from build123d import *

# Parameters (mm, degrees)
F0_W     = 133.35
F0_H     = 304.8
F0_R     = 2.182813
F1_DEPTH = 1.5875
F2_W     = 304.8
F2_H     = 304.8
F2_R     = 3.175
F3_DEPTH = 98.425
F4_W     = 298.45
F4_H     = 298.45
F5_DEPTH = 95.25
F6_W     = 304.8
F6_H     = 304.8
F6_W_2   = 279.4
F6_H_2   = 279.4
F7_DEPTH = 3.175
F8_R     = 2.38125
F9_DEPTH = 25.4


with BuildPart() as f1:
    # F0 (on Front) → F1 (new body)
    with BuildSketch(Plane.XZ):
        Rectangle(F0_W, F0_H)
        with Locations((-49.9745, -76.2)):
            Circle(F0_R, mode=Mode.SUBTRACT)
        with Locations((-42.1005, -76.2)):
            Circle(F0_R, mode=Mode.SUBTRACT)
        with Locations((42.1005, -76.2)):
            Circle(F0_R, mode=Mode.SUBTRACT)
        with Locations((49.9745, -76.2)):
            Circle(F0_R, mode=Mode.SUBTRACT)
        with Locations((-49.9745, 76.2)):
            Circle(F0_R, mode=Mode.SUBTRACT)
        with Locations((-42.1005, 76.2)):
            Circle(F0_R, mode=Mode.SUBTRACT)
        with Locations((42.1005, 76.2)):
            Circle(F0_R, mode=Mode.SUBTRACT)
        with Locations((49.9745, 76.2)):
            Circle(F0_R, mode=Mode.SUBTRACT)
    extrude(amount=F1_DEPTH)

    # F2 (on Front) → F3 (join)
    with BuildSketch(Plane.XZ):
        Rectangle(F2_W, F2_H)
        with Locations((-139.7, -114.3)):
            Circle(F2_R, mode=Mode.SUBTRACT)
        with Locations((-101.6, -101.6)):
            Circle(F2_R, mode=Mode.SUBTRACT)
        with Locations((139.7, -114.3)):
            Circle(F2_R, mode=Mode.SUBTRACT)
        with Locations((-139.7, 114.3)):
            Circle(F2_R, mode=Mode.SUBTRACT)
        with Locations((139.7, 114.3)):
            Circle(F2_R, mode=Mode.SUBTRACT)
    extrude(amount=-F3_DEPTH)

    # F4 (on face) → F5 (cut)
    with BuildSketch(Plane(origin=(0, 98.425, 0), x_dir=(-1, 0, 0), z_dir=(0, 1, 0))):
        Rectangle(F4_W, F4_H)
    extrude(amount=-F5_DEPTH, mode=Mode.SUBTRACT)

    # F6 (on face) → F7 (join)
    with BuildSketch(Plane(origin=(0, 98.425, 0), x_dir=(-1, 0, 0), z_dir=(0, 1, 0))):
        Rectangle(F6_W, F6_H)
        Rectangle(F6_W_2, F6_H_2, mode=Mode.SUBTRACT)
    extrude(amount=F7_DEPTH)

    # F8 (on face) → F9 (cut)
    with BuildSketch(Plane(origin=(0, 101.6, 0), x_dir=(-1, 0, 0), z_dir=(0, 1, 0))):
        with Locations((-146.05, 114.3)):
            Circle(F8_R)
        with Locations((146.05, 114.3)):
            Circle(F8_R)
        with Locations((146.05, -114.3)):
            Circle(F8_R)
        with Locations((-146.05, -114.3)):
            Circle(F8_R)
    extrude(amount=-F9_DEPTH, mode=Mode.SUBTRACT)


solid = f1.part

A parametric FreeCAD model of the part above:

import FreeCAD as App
import Part
import Sketcher

V = App.Vector
Q = App.Units.Quantity


def add_polygon(sketch, points):
    """Adds a closed chain of lines whose ends are joined by coincident constraints."""
    first, n = sketch.GeometryCount, len(points)
    for a, b in zip(points, points[1:] + points[:1]):
        sketch.addGeometry(Part.LineSegment(App.Vector(*a, 0), App.Vector(*b, 0)), False)
    for i in range(n):
        sketch.addConstraint(Sketcher.Constraint("Coincident", first + i, 2, first + (i + 1) % n, 1))

doc = App.newDocument("Part")
body = doc.addObject("PartDesign::Body", "Body")

sketch1 = body.newObject("Sketcher::SketchObject", "Sketch")
sketch1.AttachmentSupport = (doc.getObject("XZ_Plane"), [""])
sketch1.MapMode = "FlatFace"
add_polygon(sketch1, [(-66.675, 152.4), (-66.675, -152.4), (66.675, -152.4), (66.675, 152.4)])
sketch1.addGeometry(Part.Circle(V(-49.9745, -76.2, 0), V(0, 0, 1), 2.182813), False)
sketch1.addGeometry(Part.Circle(V(-42.1005, -76.2, 0), V(0, 0, 1), 2.182813), False)
sketch1.addGeometry(Part.Circle(V(42.1005, -76.2, 0), V(0, 0, 1), 2.182813), False)
sketch1.addGeometry(Part.Circle(V(49.9745, -76.2, 0), V(0, 0, 1), 2.182813), False)
sketch1.addGeometry(Part.Circle(V(-49.9745, 76.2, 0), V(0, 0, 1), 2.182813), False)
sketch1.addGeometry(Part.Circle(V(-42.1005, 76.2, 0), V(0, 0, 1), 2.182813), False)
sketch1.addGeometry(Part.Circle(V(42.1005, 76.2, 0), V(0, 0, 1), 2.182813), False)
sketch1.addGeometry(Part.Circle(V(49.9745, 76.2, 0), V(0, 0, 1), 2.182813), False)
sketch1.addConstraint(Sketcher.Constraint("Vertical", 0))
sketch1.addConstraint(Sketcher.Constraint("Horizontal", 1))
sketch1.addConstraint(Sketcher.Constraint("Vertical", 2))
sketch1.addConstraint(Sketcher.Constraint("Horizontal", 3))
sketch1.addConstraint(Sketcher.Constraint("Equal", 4, 5))
sketch1.addConstraint(Sketcher.Constraint("Equal", 5, 6))
sketch1.addConstraint(Sketcher.Constraint("Equal", 6, 7))
sketch1.addConstraint(Sketcher.Constraint("Equal", 7, 8))
sketch1.addConstraint(Sketcher.Constraint("Equal", 8, 9))
sketch1.addConstraint(Sketcher.Constraint("Equal", 9, 10))
sketch1.addConstraint(Sketcher.Constraint("Equal", 10, 11))
sketch1.addConstraint(Sketcher.Constraint("Symmetric", 7, 3, 8, 3, -1, 1))
sketch1.addConstraint(Sketcher.Constraint("Symmetric", 6, 3, 9, 3, -1, 1))
sketch1.addConstraint(Sketcher.Constraint("Symmetric", 5, 3, 10, 3, -1, 1))
sketch1.addConstraint(Sketcher.Constraint("Symmetric", 4, 3, 11, 3, -1, 1))
sketch1.addConstraint(Sketcher.Constraint("Symmetric", 0, 2, 2, 2, -1, 1))
sketch1.addConstraint(Sketcher.Constraint("Symmetric", 5, 3, 6, 3, -2))
sketch1.addConstraint(Sketcher.Constraint("Symmetric", 4, 3, 7, 3, -2))
sketch1.addConstraint(Sketcher.Constraint("Horizontal", 4, 3, 5, 3))
sketch1.addConstraint(Sketcher.Constraint("DistanceY", 0, 2, 0, 1, Q("12 in")))
sketch1.addConstraint(Sketcher.Constraint("Diameter", 4, Q("0.171875 in")))
sketch1.addConstraint(Sketcher.Constraint("DistanceY", 4, 3, -1, 1, Q("3 in")))
sketch1.addConstraint(Sketcher.Constraint("DistanceX", 1, 1, 1, 2, Q("5.25 in")))
sketch1.addConstraint(Sketcher.Constraint("DistanceX", 4, 3, 5, 3, Q("0.31 in")))
sketch1.addConstraint(Sketcher.Constraint("DistanceX", 5, 3, 6, 3, Q("3.315 in")))
pad1 = body.newObject("PartDesign::Pad", "Pad")
pad1.Profile = sketch1
pad1.Length = Q("0.0625 in")

sketch2 = body.newObject("Sketcher::SketchObject", "Sketch001")
sketch2.AttachmentSupport = (doc.getObject("XZ_Plane"), [""])
sketch2.MapMode = "FlatFace"
add_polygon(sketch2, [(-152.4, 152.4), (-152.4, -152.4), (152.4, -152.4), (152.4, 152.4)])
sketch2.addGeometry(Part.Circle(V(-139.7, -114.3, 0), V(0, 0, 1), 3.175), False)
sketch2.addGeometry(Part.Circle(V(-101.6, -101.6, 0), V(0, 0, 1), 3.175), False)
sketch2.addGeometry(Part.Circle(V(139.7, -114.3, 0), V(0, 0, 1), 3.175), False)
sketch2.addGeometry(Part.Circle(V(-139.7, 114.3, 0), V(0, 0, 1), 3.175), False)
sketch2.addGeometry(Part.Circle(V(139.7, 114.3, 0), V(0, 0, 1), 3.175), False)
sketch2.addConstraint(Sketcher.Constraint("Vertical", 0))
sketch2.addConstraint(Sketcher.Constraint("Horizontal", 1))
sketch2.addConstraint(Sketcher.Constraint("Vertical", 2))
sketch2.addConstraint(Sketcher.Constraint("Horizontal", 3))
sketch2.addConstraint(Sketcher.Constraint("Equal", 4, 5))
sketch2.addConstraint(Sketcher.Constraint("Equal", 5, 6))
sketch2.addConstraint(Sketcher.Constraint("Equal", 6, 7))
sketch2.addConstraint(Sketcher.Constraint("Equal", 7, 8))
sketch2.addConstraint(Sketcher.Constraint("Symmetric", 6, 3, 7, 3, -1, 1))
sketch2.addConstraint(Sketcher.Constraint("Symmetric", 4, 3, 8, 3, -1, 1))
sketch2.addConstraint(Sketcher.Constraint("Symmetric", 0, 2, 2, 2, -1, 1))
sketch2.addConstraint(Sketcher.Constraint("Symmetric", 4, 3, 6, 3, -2))
sketch2.addConstraint(Sketcher.Constraint("Equal", 3, 0))
sketch2.addConstraint(Sketcher.Constraint("Diameter", 4, Q("0.25 in")))
sketch2.addConstraint(Sketcher.Constraint("DistanceX", 1, 1, 1, 2, Q("12 in")))
sketch2.addConstraint(Sketcher.Constraint("DistanceX", 5, 3, -1, 1, Q("4 in")))
sketch2.addConstraint(Sketcher.Constraint("DistanceY", 5, 3, -1, 1, Q("4 in")))
sketch2.addConstraint(Sketcher.Constraint("DistanceX", 4, 3, 6, 3, Q("11 in")))
sketch2.addConstraint(Sketcher.Constraint("DistanceY", 4, 3, 7, 3, Q("9 in")))
pad2 = body.newObject("PartDesign::Pad", "Pad001")
pad2.Profile = sketch2
pad2.Length = Q("3.875 in")
pad2.Reversed = True

sketch3 = body.newObject("Sketcher::SketchObject", "Sketch002")
sketch3.AttachmentSupport = (doc.getObject("XZ_Plane"), [""])
sketch3.MapMode = "FlatFace"
sketch3.AttachmentOffset = App.Placement(V(0, 0, -3.875 * 25.4), App.Rotation())
add_polygon(sketch3, [(149.225, 149.225), (149.225, -149.225), (-149.225, -149.225), (-149.225, 149.225)])
sketch3.addConstraint(Sketcher.Constraint("Vertical", 0))
sketch3.addConstraint(Sketcher.Constraint("Horizontal", 1))
sketch3.addConstraint(Sketcher.Constraint("Vertical", 2))
sketch3.addConstraint(Sketcher.Constraint("Horizontal", 3))
sketch3.addConstraint(Sketcher.Constraint("Symmetric", 0, 2, 2, 2, -1, 1))
sketch3.addConstraint(Sketcher.Constraint("Equal", 3, 0))
sketch3.addConstraint(Sketcher.Constraint("DistanceX", 1, 2, 1, 1, Q("11.75 in")))
pocket1 = body.newObject("PartDesign::Pocket", "Pocket")
pocket1.Profile = sketch3
pocket1.Length = Q("3.75 in")
pocket1.Reversed = True

sketch4 = body.newObject("Sketcher::SketchObject", "Sketch003")
sketch4.AttachmentSupport = (doc.getObject("XZ_Plane"), [""])
sketch4.MapMode = "FlatFace"
sketch4.AttachmentOffset = App.Placement(V(0, 0, -3.875 * 25.4), App.Rotation())
add_polygon(sketch4, [(152.4, 152.4), (152.4, -152.4), (-152.4, -152.4), (-152.4, 152.4)])
add_polygon(sketch4, [(-139.7, -139.7), (139.7, -139.7), (139.7, 139.7), (-139.7, 139.7)])
sketch4.addConstraint(Sketcher.Constraint("Vertical", 0))
sketch4.addConstraint(Sketcher.Constraint("Horizontal", 1))
sketch4.addConstraint(Sketcher.Constraint("Vertical", 2))
sketch4.addConstraint(Sketcher.Constraint("Horizontal", 3))
sketch4.addConstraint(Sketcher.Constraint("Horizontal", 4))
sketch4.addConstraint(Sketcher.Constraint("Vertical", 5))
sketch4.addConstraint(Sketcher.Constraint("Horizontal", 6))
sketch4.addConstraint(Sketcher.Constraint("Vertical", 7))
sketch4.addConstraint(Sketcher.Constraint("Symmetric", 0, 2, 2, 2, -1, 1))
sketch4.addConstraint(Sketcher.Constraint("Symmetric", 4, 2, 6, 2, -1, 1))
sketch4.addConstraint(Sketcher.Constraint("Equal", 3, 0))
sketch4.addConstraint(Sketcher.Constraint("Equal", 6, 5))
sketch4.addConstraint(Sketcher.Constraint("DistanceX", 1, 2, 1, 1, Q("12 in")))
sketch4.addConstraint(Sketcher.Constraint("DistanceX", 4, 1, 4, 2, Q("11 in")))
pad3 = body.newObject("PartDesign::Pad", "Pad002")
pad3.Profile = sketch4
pad3.Length = Q("0.125 in")
pad3.Reversed = True

sketch5 = body.newObject("Sketcher::SketchObject", "Sketch004")
sketch5.AttachmentSupport = (doc.getObject("XZ_Plane"), [""])
sketch5.MapMode = "FlatFace"
sketch5.AttachmentOffset = App.Placement(V(0, 0, -4 * 25.4), App.Rotation())
sketch5.addGeometry(Part.Circle(V(146.05, 114.3, 0), V(0, 0, 1), 2.38125), False)
sketch5.addGeometry(Part.Circle(V(-146.05, 114.3, 0), V(0, 0, 1), 2.38125), False)
sketch5.addGeometry(Part.Circle(V(-146.05, -114.3, 0), V(0, 0, 1), 2.38125), False)
sketch5.addGeometry(Part.Circle(V(146.05, -114.3, 0), V(0, 0, 1), 2.38125), False)
sketch5.addConstraint(Sketcher.Constraint("Equal", 0, 1))
sketch5.addConstraint(Sketcher.Constraint("Equal", 1, 2))
sketch5.addConstraint(Sketcher.Constraint("Equal", 2, 3))
sketch5.addConstraint(Sketcher.Constraint("Symmetric", 0, 3, 2, 3, -1, 1))
sketch5.addConstraint(Sketcher.Constraint("Symmetric", 1, 3, 3, 3, -1, 1))
sketch5.addConstraint(Sketcher.Constraint("Symmetric", 0, 3, 1, 3, -2))
sketch5.addConstraint(Sketcher.Constraint("Diameter", 0, Q("0.1875 in")))
sketch5.addConstraint(Sketcher.Constraint("DistanceY", 2, 3, 1, 3, Q("9 in")))
sketch5.addConstraint(Sketcher.Constraint("DistanceX", 1, 3, 0, 3, Q("11.5 in")))
pocket2 = body.newObject("PartDesign::Pocket", "Pocket001")
pocket2.Profile = sketch5
pocket2.Length = Q("1 in")
pocket2.Reversed = True

doc.recompute()
